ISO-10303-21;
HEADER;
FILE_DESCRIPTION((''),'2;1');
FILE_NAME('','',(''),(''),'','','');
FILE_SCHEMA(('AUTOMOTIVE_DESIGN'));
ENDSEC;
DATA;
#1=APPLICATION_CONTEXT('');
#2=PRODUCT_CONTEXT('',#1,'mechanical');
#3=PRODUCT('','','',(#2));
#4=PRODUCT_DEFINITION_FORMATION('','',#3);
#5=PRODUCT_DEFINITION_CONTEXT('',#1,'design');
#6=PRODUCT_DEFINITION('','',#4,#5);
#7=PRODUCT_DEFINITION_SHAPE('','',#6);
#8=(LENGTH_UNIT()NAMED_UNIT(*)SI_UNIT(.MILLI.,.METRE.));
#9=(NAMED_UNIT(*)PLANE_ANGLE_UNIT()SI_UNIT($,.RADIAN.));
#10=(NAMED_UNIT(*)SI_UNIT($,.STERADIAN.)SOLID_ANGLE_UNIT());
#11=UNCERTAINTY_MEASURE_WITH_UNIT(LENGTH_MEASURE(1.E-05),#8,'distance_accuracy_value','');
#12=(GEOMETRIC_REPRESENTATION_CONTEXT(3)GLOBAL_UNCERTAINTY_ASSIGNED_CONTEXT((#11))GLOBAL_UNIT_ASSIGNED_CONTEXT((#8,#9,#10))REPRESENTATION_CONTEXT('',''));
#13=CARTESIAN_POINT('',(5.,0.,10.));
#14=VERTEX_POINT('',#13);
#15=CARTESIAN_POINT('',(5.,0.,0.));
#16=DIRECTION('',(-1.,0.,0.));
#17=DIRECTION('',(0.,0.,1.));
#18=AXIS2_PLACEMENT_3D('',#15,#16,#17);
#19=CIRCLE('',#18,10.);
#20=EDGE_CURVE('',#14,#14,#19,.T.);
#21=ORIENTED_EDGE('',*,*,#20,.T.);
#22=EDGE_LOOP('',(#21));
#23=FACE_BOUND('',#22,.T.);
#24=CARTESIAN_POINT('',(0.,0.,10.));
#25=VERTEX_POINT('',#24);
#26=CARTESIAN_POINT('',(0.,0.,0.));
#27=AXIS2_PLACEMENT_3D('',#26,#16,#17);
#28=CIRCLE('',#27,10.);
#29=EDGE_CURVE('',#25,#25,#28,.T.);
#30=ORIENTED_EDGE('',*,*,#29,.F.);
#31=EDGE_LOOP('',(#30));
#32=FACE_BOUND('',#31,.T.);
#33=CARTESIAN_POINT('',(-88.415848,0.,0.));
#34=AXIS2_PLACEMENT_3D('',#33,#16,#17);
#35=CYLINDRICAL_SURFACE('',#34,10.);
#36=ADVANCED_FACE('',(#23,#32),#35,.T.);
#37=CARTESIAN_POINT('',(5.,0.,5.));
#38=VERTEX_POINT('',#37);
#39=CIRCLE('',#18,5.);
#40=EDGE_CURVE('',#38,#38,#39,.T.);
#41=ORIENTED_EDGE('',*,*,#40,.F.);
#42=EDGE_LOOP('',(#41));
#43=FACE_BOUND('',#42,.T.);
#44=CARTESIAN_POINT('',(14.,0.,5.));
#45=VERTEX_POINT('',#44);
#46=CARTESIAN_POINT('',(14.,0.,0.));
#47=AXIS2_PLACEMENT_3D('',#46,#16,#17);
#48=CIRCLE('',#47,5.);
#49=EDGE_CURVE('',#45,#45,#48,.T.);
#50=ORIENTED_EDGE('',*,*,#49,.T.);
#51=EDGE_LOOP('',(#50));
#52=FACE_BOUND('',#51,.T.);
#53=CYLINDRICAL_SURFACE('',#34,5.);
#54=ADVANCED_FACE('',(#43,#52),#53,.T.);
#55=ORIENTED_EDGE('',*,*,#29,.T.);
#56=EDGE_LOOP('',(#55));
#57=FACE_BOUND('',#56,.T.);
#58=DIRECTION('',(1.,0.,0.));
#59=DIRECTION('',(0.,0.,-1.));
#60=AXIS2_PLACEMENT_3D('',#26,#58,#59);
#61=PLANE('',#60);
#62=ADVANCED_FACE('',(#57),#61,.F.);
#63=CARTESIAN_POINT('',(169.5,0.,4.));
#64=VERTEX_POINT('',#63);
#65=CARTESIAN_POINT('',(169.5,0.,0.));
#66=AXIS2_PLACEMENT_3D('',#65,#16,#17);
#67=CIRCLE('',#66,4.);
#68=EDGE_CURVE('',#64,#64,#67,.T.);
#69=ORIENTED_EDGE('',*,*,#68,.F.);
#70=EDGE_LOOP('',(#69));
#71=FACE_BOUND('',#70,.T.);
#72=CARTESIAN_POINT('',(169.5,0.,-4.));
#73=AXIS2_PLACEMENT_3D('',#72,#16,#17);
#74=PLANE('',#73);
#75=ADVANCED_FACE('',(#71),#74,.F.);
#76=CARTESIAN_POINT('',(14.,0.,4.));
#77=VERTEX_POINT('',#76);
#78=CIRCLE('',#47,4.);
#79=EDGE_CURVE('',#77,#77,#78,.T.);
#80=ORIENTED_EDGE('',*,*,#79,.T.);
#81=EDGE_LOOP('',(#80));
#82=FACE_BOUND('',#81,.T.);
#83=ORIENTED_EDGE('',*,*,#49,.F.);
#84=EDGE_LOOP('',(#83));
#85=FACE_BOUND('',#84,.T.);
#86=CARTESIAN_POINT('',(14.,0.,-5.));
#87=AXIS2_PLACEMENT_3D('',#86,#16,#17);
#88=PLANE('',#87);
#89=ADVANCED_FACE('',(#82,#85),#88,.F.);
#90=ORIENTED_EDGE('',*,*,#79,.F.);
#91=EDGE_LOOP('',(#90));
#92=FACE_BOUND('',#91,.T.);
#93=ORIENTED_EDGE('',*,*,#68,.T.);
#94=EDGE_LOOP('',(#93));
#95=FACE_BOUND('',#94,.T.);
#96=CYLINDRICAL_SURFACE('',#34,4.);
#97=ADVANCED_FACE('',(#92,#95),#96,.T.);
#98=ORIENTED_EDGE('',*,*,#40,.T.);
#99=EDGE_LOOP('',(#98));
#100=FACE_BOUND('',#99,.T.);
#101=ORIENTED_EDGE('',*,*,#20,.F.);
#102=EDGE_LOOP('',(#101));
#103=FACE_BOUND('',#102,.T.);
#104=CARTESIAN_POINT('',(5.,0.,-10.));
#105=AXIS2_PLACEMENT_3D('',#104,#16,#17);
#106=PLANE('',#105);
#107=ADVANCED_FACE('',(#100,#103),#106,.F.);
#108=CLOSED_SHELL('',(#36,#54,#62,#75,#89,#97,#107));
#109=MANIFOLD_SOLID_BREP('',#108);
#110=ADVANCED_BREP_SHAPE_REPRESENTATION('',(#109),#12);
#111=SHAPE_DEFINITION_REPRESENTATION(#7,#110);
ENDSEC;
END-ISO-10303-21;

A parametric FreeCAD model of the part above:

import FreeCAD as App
import Part
import Sketcher

doc = App.newDocument("Part")
body = doc.addObject("PartDesign::Body", "Body")

# Sketch on XZ plane
sketch1 = doc.addObject("Sketcher::SketchObject", "Sketch")
body.addObject(sketch1)
sketch1.AttachmentSupport = (doc.XZ_Plane, [""])
sketch1.MapMode = "FlatFace"
sketch1.addGeometry(Part.LineSegment(App.Vector(0, -10, 0), App.Vector(0, 0, 0)), False)
sketch1.addGeometry(Part.LineSegment(App.Vector(0, 0, 0), App.Vector(169.5, 0, 0)), False)
sketch1.addGeometry(Part.LineSegment(App.Vector(169.5, 0, 0), App.Vector(169.5, -4, 0)), False)
sketch1.addGeometry(Part.LineSegment(App.Vector(169.5, -4, 0), App.Vector(14, -4, 0)), False)
sketch1.addGeometry(Part.LineSegment(App.Vector(14, -4, 0), App.Vector(14, -5, 0)), False)
sketch1.addGeometry(Part.LineSegment(App.Vector(14, -5, 0), App.Vector(5, -5, 0)), False)
sketch1.addGeometry(Part.LineSegment(App.Vector(5, -5, 0), App.Vector(5, -10, 0)), False)
sketch1.addGeometry(Part.LineSegment(App.Vector(5, -10, 0), App.Vector(0, -10, 0)), False)
sketch1.addConstraint(Sketcher.Constraint("Coincident", 0, 2, 1, 1))
sketch1.addConstraint(Sketcher.Constraint("Coincident", 1, 2, 2, 1))
sketch1.addConstraint(Sketcher.Constraint("Coincident", 2, 2, 3, 1))
sketch1.addConstraint(Sketcher.Constraint("Coincident", 3, 2, 4, 1))
sketch1.addConstraint(Sketcher.Constraint("Coincident", 4, 2, 5, 1))
sketch1.addConstraint(Sketcher.Constraint("Coincident", 5, 2, 6, 1))
sketch1.addConstraint(Sketcher.Constraint("Coincident", 6, 2, 7, 1))
sketch1.addConstraint(Sketcher.Constraint("Coincident", 7, 2, 0, 1))
sketch1.addConstraint(Sketcher.Constraint("Vertical", 0))
sketch1.addConstraint(Sketcher.Constraint("Horizontal", 1))
sketch1.addConstraint(Sketcher.Constraint("Vertical", 2))
sketch1.addConstraint(Sketcher.Constraint("Horizontal", 3))
sketch1.addConstraint(Sketcher.Constraint("Vertical", 4))
sketch1.addConstraint(Sketcher.Constraint("Horizontal", 5))
sketch1.addConstraint(Sketcher.Constraint("Vertical", 6))
sketch1.addConstraint(Sketcher.Constraint("Horizontal", 7))
sketch1.addConstraint(Sketcher.Constraint("Coincident", 0, 2, -1, 1))
sketch1.addConstraint(Sketcher.Constraint("Equal", 7, 6))
sketch1.addConstraint(Sketcher.Constraint("DistanceX", 5, 2, 5, 1, 9.0))
sketch1.addConstraint(Sketcher.Constraint("DistanceX", 7, 2, 7, 1, 5.0))
sketch1.addConstraint(Sketcher.Constraint("DistanceY", 0, 1, 0, 2, 10.0))
sketch1.addConstraint(Sketcher.Constraint("DistanceY", 2, 2, 2, 1, 4.0))
sketch1.addConstraint(Sketcher.Constraint("DistanceX", 1, 1, 1, 2, 169.5))
revolution = doc.addObject("PartDesign::Revolution", "Revolution")
body.addObject(revolution)
revolution.Profile = sketch1
revolution.ReferenceAxis = (sketch1, ["H_Axis"])
revolution.Angle = 360

doc.recompute()
